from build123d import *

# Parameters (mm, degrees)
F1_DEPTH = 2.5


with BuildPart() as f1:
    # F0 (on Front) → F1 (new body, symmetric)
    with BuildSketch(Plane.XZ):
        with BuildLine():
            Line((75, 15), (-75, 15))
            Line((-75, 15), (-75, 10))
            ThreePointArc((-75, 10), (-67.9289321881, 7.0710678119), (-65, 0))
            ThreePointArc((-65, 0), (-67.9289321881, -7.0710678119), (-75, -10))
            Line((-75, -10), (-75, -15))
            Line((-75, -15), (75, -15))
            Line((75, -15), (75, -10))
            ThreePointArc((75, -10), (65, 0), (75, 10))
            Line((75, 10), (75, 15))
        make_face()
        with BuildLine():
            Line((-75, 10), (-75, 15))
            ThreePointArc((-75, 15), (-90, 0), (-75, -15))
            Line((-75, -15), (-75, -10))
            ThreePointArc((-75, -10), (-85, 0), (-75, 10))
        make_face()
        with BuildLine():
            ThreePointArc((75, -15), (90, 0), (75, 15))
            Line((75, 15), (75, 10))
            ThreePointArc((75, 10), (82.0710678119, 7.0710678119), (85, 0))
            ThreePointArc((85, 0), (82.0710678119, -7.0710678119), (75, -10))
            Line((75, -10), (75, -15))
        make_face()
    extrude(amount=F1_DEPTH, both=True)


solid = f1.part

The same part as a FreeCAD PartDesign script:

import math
import FreeCAD as App
import Part
import Sketcher

V = App.Vector
Q = App.Units.Quantity

doc = App.newDocument("Part")
body = doc.addObject("PartDesign::Body", "Body")

sketch1 = body.newObject("Sketcher::SketchObject", "Sketch")
sketch1.AttachmentSupport = (doc.getObject("XZ_Plane"), [""])
sketch1.MapMode = "FlatFace"
sketch1.addGeometry([
    Part.LineSegment(V(75, 15, 0), V(-75, 15, 0)),
    Part.ArcOfCircle(Part.Circle(V(-75, 0, 0), V(0, 0, 1), 15), math.radians(90), math.radians(270)),
    Part.LineSegment(V(-75, -15, 0), V(75, -15, 0)),
    Part.ArcOfCircle(Part.Circle(V(75, 0, 0), V(0, 0, 1), 15), math.radians(-90), math.radians(90)),
    Part.ArcOfCircle(Part.Circle(V(75, 0, 0), V(0, 0, 1), 10), math.radians(90), math.radians(270)),
    Part.ArcOfCircle(Part.Circle(V(75, 0, 0), V(0, 0, 1), 10), math.radians(0), math.radians(90)),
    Part.ArcOfCircle(Part.Circle(V(75, 0, 0), V(0, 0, 1), 10), math.radians(-90), math.radians(0)),
    Part.ArcOfCircle(Part.Circle(V(-75, 0, 0), V(0, 0, 1), 10), math.radians(0), math.radians(90)),
    Part.ArcOfCircle(Part.Circle(V(-75, 0, 0), V(0, 0, 1), 10), math.radians(-90), math.radians(0)),
    Part.ArcOfCircle(Part.Circle(V(-75, 0, 0), V(0, 0, 1), 10), math.radians(90), math.radians(270)),
], False)
sketch1.addConstraint([
    Sketcher.Constraint("Tangent", 0, 2, 1, 1),
    Sketcher.Constraint("Tangent", 1, 2, 2, 1),
    Sketcher.Constraint("Tangent", 2, 2, 3, 1),
    Sketcher.Constraint("Tangent", 3, 2, 0, 1),
    Sketcher.Constraint("Tangent", 4, 1, 5, 2),
    Sketcher.Constraint("Tangent", 5, 1, 6, 2),
    Sketcher.Constraint("Tangent", 6, 1, 4, 2),
    Sketcher.Constraint("Tangent", 7, 1, 8, 2),
    Sketcher.Constraint("Tangent", 8, 1, 9, 2),
    Sketcher.Constraint("Tangent", 9, 1, 7, 2),
    Sketcher.Constraint("Horizontal", 0),
    Sketcher.Constraint("Horizontal", 2),
    Sketcher.Constraint("Coincident", 4, 3, 3, 3),
    Sketcher.Constraint("Coincident", 7, 3, 1, 3),
    Sketcher.Constraint("Equal", 6, 7),
    Sketcher.Constraint("Symmetric", 1, 3, 3, 3, -1, 1),
    Sketcher.Constraint("PointOnObject", 5, 1, -1),
    Sketcher.Constraint("PointOnObject", 7, 1, -1),
    Sketcher.Constraint("Vertical", 3, 2, 4, 1),
    Sketcher.Constraint("Vertical", 4, 1, 6, 1),
    Sketcher.Constraint("Vertical", 1, 2, 8, 1),
    Sketcher.Constraint("Vertical", 8, 1, 9, 1),
    Sketcher.Constraint("Radius", 1, Q("15 mm")),
    Sketcher.Constraint("Radius", 4, Q("10 mm")),
    Sketcher.Constraint("DistanceX", 0, 2, 0, 1, Q("150 mm")),
])
pad1 = body.newObject("PartDesign::Pad", "Pad")
pad1.Profile = sketch1
pad1.Length = 5
pad1.Midplane = True

doc.recompute()
